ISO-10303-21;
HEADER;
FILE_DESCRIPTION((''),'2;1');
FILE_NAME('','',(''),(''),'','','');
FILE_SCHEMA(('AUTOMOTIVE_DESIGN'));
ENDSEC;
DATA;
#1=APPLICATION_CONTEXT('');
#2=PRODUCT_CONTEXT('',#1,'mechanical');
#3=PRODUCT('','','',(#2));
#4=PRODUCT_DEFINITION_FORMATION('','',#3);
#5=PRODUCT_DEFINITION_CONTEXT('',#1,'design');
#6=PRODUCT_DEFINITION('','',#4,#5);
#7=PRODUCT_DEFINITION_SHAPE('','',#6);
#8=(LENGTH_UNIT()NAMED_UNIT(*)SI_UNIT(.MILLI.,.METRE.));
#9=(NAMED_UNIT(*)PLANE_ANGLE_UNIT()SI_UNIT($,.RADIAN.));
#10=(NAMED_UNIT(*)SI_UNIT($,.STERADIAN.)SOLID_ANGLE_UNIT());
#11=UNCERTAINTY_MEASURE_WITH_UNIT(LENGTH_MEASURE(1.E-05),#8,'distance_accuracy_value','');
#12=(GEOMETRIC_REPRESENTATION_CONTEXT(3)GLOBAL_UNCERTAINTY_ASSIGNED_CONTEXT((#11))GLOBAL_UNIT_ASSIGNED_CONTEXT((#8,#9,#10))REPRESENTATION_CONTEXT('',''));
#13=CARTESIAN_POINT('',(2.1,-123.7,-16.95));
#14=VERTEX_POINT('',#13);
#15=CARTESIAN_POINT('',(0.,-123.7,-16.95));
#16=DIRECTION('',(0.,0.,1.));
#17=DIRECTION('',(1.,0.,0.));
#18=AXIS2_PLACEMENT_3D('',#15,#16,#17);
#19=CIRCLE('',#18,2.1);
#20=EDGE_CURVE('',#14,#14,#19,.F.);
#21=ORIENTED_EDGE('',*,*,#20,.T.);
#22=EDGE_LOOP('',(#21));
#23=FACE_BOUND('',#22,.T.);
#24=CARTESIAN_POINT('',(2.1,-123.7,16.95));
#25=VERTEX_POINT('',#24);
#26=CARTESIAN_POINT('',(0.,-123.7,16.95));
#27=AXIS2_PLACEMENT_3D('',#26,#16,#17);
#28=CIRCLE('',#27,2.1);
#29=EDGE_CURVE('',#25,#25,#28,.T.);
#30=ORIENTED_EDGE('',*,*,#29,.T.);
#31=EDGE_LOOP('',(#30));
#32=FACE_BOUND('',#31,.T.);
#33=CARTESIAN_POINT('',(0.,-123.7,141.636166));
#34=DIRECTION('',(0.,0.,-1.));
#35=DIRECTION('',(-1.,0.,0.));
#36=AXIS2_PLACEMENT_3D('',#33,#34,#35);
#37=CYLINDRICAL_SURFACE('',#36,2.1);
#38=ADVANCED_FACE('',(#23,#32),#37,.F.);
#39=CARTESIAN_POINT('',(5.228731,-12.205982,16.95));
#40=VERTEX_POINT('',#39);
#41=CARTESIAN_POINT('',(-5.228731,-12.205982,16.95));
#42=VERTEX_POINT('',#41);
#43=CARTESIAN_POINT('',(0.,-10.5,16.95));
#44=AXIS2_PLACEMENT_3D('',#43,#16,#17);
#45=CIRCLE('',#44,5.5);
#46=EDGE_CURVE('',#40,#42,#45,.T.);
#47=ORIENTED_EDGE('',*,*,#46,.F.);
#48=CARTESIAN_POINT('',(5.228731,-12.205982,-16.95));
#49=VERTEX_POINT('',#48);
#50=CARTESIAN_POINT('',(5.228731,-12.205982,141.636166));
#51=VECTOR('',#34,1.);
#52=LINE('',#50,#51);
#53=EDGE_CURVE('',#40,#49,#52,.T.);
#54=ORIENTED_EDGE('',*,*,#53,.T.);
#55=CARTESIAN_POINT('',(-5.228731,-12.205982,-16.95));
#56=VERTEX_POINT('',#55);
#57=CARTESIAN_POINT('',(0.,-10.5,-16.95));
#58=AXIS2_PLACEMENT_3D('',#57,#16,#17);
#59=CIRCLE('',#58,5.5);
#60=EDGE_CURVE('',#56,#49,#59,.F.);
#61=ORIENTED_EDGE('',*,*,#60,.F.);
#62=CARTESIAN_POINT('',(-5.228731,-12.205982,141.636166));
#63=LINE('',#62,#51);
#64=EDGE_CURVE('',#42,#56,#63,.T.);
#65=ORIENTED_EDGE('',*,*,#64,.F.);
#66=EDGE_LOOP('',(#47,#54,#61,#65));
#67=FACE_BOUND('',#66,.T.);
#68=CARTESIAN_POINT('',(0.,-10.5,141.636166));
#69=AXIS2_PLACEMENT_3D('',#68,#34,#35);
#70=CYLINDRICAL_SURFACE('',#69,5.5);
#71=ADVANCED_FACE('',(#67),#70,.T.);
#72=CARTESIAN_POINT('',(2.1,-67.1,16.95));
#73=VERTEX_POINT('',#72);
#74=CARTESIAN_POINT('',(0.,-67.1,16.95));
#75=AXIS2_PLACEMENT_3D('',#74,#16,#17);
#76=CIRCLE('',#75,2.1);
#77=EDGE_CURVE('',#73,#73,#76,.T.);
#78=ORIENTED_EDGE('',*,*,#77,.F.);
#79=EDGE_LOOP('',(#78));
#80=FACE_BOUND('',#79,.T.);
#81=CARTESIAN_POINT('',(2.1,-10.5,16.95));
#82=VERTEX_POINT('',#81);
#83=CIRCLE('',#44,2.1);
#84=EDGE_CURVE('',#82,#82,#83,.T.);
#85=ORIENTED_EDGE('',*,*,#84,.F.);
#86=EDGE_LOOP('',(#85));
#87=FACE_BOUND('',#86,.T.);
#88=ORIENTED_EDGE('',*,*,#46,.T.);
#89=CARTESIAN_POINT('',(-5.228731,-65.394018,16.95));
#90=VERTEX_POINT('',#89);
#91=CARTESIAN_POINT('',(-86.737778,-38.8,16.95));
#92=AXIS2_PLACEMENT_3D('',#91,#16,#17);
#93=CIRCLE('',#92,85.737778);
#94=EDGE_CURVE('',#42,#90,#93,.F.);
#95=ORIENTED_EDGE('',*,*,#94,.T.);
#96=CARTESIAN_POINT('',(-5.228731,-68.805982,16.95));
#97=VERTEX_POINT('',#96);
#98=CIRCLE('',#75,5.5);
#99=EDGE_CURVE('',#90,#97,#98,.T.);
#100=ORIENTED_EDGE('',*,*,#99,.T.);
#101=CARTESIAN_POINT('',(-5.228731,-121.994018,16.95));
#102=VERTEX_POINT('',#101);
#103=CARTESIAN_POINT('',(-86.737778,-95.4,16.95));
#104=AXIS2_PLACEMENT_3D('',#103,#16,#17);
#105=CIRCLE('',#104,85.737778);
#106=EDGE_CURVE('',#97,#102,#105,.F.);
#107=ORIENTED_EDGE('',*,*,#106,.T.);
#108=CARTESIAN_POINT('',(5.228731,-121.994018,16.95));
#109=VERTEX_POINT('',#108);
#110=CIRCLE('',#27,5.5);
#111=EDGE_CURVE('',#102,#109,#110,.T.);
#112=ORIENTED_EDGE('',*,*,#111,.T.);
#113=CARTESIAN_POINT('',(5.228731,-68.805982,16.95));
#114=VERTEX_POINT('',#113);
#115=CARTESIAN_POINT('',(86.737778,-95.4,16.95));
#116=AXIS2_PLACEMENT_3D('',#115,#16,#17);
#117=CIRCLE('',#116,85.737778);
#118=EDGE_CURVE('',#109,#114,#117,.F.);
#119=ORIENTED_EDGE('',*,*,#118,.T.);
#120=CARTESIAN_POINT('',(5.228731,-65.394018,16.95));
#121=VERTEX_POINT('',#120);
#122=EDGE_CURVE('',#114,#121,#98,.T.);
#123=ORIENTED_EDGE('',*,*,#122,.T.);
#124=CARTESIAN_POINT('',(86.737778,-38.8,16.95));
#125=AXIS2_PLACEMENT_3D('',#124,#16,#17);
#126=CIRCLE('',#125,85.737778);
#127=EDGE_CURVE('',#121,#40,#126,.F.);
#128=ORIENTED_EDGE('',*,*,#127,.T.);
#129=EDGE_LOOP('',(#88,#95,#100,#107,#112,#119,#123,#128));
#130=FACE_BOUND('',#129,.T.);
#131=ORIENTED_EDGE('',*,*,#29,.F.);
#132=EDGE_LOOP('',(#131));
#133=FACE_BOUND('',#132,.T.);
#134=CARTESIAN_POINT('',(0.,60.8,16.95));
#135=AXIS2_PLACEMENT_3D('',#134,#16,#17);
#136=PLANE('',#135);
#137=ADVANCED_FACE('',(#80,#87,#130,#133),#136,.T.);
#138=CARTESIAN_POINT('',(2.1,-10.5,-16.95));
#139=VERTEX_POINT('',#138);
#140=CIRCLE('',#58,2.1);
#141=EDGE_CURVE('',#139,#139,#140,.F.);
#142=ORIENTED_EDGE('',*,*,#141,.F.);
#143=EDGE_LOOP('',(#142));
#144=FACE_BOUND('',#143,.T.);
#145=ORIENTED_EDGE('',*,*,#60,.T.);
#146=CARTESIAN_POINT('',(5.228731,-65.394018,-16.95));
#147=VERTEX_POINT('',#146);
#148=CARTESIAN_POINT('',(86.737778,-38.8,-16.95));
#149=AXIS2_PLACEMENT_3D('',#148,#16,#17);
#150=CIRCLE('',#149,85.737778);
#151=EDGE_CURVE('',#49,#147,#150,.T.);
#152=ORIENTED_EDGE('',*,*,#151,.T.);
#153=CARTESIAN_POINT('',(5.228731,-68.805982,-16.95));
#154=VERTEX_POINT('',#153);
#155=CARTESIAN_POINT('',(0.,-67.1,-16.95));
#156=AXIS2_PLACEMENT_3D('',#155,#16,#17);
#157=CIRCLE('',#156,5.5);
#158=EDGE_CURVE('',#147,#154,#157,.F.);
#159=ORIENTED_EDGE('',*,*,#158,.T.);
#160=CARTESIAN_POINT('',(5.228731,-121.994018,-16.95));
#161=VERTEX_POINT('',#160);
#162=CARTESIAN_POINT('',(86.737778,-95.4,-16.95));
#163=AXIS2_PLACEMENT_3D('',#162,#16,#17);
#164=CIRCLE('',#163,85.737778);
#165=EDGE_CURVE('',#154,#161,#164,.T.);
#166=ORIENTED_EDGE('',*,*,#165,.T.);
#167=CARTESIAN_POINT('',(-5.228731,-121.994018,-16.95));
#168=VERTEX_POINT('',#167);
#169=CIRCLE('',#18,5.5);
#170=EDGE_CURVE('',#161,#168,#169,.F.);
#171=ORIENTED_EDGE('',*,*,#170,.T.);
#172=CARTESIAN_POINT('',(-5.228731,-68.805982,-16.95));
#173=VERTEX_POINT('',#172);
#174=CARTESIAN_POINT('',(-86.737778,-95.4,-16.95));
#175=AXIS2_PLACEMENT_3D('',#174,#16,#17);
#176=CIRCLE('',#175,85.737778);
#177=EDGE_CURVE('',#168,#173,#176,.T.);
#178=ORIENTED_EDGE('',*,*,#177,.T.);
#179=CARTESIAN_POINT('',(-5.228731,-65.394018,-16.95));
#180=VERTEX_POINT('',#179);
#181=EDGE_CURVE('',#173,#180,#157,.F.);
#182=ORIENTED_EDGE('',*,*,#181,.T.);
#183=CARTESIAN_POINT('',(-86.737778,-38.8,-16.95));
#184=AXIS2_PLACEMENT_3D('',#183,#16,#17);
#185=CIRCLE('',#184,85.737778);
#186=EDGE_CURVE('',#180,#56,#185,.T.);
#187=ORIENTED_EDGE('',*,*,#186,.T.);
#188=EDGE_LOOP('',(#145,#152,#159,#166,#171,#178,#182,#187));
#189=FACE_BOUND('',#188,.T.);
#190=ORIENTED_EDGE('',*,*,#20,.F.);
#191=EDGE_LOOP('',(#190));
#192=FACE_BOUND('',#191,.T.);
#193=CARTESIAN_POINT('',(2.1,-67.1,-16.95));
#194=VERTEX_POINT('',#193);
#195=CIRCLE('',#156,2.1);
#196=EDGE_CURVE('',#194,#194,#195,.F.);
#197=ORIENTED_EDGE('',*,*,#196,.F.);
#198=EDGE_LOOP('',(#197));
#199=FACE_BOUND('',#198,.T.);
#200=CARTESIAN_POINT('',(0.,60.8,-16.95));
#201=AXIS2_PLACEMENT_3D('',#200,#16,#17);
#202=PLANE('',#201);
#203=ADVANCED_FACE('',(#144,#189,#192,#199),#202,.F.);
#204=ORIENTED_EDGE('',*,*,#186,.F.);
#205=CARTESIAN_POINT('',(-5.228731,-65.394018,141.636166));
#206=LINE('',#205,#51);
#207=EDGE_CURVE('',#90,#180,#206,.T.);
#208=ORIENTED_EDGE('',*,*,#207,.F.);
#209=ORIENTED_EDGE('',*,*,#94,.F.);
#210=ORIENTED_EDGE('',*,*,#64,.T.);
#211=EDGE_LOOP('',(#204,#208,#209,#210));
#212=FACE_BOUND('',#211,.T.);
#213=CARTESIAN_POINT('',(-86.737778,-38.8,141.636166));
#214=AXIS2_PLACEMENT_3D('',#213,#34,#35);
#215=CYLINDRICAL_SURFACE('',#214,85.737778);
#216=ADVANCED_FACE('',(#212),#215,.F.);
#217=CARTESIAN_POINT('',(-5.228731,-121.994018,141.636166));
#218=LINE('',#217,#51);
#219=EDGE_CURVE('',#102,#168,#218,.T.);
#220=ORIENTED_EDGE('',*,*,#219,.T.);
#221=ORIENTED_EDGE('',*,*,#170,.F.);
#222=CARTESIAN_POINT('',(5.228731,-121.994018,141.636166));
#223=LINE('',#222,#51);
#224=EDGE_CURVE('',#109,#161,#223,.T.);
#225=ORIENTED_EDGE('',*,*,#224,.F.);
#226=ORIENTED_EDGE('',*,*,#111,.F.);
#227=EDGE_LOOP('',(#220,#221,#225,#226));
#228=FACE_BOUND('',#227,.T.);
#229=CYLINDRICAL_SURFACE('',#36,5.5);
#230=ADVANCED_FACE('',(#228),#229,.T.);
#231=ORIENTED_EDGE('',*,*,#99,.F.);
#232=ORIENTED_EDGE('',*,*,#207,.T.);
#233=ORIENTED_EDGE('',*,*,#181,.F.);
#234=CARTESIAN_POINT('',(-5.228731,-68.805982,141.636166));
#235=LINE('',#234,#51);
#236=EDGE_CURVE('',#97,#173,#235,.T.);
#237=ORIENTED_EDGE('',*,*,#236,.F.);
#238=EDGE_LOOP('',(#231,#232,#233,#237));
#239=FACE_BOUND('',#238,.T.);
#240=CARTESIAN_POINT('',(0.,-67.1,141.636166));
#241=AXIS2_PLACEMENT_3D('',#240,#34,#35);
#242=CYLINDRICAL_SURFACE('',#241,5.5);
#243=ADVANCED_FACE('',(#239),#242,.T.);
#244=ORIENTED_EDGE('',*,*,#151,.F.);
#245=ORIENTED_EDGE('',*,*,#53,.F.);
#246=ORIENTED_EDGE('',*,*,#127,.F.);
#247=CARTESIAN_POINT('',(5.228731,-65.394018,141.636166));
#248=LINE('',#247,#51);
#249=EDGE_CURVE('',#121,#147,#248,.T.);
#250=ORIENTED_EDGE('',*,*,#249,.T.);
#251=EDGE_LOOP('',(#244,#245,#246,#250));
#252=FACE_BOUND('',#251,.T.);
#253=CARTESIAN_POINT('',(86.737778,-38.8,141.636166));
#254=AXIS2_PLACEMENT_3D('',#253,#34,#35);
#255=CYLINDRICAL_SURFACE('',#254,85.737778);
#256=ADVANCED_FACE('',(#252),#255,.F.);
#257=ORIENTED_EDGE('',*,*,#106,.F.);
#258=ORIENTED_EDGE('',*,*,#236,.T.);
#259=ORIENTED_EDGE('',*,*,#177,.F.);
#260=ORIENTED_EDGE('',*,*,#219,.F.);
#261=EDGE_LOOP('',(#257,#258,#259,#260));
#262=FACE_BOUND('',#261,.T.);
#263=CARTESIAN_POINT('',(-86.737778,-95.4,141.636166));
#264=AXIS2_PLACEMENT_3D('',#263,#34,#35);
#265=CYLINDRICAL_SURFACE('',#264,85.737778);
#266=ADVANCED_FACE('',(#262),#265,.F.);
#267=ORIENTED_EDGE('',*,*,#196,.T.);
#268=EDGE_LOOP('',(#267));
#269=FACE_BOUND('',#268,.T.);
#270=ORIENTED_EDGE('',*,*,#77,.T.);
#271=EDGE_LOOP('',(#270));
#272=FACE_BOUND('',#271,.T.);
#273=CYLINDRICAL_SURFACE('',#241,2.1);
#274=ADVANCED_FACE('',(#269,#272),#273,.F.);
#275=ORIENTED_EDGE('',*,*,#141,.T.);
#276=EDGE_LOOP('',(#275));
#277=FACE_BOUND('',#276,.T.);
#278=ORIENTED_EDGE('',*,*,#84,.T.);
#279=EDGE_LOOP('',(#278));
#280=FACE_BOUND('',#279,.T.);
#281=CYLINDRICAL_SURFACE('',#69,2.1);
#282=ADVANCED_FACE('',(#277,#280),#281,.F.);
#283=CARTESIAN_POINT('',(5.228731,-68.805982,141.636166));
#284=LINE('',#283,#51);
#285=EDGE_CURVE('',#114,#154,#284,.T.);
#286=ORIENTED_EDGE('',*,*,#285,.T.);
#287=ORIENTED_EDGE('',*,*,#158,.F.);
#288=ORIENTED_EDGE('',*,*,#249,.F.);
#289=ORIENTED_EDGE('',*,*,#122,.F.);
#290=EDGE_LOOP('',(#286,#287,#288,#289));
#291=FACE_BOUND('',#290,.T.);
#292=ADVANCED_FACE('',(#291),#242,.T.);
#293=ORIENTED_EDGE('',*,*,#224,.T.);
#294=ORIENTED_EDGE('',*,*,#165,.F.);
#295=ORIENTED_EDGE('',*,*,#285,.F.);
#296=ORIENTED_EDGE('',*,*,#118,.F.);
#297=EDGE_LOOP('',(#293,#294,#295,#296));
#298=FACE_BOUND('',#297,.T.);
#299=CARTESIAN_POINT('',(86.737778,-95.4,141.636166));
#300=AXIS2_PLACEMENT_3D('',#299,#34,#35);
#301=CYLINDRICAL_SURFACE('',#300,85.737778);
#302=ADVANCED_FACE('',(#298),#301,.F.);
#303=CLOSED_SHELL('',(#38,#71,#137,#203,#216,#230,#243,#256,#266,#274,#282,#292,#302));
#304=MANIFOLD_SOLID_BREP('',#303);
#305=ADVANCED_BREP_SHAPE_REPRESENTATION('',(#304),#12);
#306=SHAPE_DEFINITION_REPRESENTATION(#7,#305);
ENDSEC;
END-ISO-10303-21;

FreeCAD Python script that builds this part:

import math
import FreeCAD as App
import Part
import Sketcher

V = App.Vector
Q = App.Units.Quantity

doc = App.newDocument("Part")
body = doc.addObject("PartDesign::Body", "Body")

# Sketch on XY plane
sketch1 = body.newObject("Sketcher::SketchObject", "Sketch")
sketch1.AttachmentSupport = (doc.getObject("XY_Plane"), [""])
sketch1.MapMode = "FlatFace"
sketch1.addGeometry([
    Part.ArcOfCircle(Part.Circle(V(0, -123.7, 0), V(0, 0, 1), 5.5), math.radians(161.93001), math.radians(378.06999)),  # 0
    Part.ArcOfCircle(Part.Circle(V(86.737778, -95.4, 0), V(0, 0, 1), 85.737778), math.radians(161.93001), math.radians(198.06999)),  # 1
    Part.ArcOfCircle(Part.Circle(V(0, -67.1, 0), V(0, 0, 1), 5.5), math.radians(-18.06999), math.radians(18.06999)),  # 2
    Part.ArcOfCircle(Part.Circle(V(86.737778, -38.8, 0), V(0, 0, 1), 85.737778), math.radians(161.93001), math.radians(198.06999)),  # 3
    Part.ArcOfCircle(Part.Circle(V(0, -10.5, 0), V(0, 0, 1), 5.5), math.radians(-18.06999), math.radians(198.06999)),  # 4
    Part.ArcOfCircle(Part.Circle(V(-86.737778, -38.8, 0), V(0, 0, 1), 85.737778), math.radians(-18.06999), math.radians(18.06999)),  # 5
    Part.ArcOfCircle(Part.Circle(V(0, -67.1, 0), V(0, 0, 1), 5.5), math.radians(161.93001), math.radians(198.06999)),  # 6
    Part.ArcOfCircle(Part.Circle(V(-86.737778, -95.4, 0), V(0, 0, 1), 85.737778), math.radians(-18.06999), math.radians(18.06999)),  # 7
    Part.Circle(V(0, -123.7, 0), V(0, 0, 1), 2.1),  # 8
    Part.Circle(V(0, -67.1, 0), V(0, 0, 1), 2.1),  # 9
    Part.Circle(V(0, -10.5, 0), V(0, 0, 1), 2.1),  # 10
], False)
sketch1.addConstraint([
    Sketcher.Constraint("Tangent", 0, 2, 1, 2),
    Sketcher.Constraint("Tangent", 1, 1, 2, 1),
    Sketcher.Constraint("Tangent", 2, 2, 3, 2),
    Sketcher.Constraint("Tangent", 3, 1, 4, 1),
    Sketcher.Constraint("Tangent", 4, 2, 5, 2),
    Sketcher.Constraint("Tangent", 5, 1, 6, 1),
    Sketcher.Constraint("Tangent", 6, 2, 7, 2),
    Sketcher.Constraint("Tangent", 7, 1, 0, 1),
    Sketcher.Constraint("Coincident", 6, 3, 2, 3),
    Sketcher.Constraint("Coincident", 8, 3, 0, 3),
    Sketcher.Constraint("Coincident", 9, 3, 2, 3),
    Sketcher.Constraint("Coincident", 10, 3, 4, 3),
    Sketcher.Constraint("Equal", 0, 2),
    Sketcher.Constraint("Equal", 1, 3),
    Sketcher.Constraint("Equal", 2, 4),
    Sketcher.Constraint("Equal", 3, 5),
    Sketcher.Constraint("Equal", 4, 6),
    Sketcher.Constraint("Equal", 5, 7),
    Sketcher.Constraint("Equal", 8, 9),
    Sketcher.Constraint("Equal", 9, 10),
    Sketcher.Constraint("Symmetric", 3, 3, 5, 3, -2),
    Sketcher.Constraint("PointOnObject", 0, 3, -2),
    Sketcher.Constraint("Vertical", 1, 3, 3, 3),
    Sketcher.Constraint("Diameter", 8, Q("4.2 mm")),
    Sketcher.Constraint("Radius", 0, Q("5.5 mm")),
    Sketcher.Constraint("DistanceY", 0, 3, -1, 1, Q("123.7 mm")),
    Sketcher.Constraint("DistanceY", 1, 3, -1, 1, Q("95.4 mm")),
    Sketcher.Constraint("Radius", 1, Q("85.737778 mm")),
])
pad1 = body.newObject("PartDesign::Pad", "Pad")
pad1.Profile = sketch1
pad1.Type = "TwoLengths"
pad1.Length = 16.95
pad1.Length2 = 16.95

doc.recompute()
